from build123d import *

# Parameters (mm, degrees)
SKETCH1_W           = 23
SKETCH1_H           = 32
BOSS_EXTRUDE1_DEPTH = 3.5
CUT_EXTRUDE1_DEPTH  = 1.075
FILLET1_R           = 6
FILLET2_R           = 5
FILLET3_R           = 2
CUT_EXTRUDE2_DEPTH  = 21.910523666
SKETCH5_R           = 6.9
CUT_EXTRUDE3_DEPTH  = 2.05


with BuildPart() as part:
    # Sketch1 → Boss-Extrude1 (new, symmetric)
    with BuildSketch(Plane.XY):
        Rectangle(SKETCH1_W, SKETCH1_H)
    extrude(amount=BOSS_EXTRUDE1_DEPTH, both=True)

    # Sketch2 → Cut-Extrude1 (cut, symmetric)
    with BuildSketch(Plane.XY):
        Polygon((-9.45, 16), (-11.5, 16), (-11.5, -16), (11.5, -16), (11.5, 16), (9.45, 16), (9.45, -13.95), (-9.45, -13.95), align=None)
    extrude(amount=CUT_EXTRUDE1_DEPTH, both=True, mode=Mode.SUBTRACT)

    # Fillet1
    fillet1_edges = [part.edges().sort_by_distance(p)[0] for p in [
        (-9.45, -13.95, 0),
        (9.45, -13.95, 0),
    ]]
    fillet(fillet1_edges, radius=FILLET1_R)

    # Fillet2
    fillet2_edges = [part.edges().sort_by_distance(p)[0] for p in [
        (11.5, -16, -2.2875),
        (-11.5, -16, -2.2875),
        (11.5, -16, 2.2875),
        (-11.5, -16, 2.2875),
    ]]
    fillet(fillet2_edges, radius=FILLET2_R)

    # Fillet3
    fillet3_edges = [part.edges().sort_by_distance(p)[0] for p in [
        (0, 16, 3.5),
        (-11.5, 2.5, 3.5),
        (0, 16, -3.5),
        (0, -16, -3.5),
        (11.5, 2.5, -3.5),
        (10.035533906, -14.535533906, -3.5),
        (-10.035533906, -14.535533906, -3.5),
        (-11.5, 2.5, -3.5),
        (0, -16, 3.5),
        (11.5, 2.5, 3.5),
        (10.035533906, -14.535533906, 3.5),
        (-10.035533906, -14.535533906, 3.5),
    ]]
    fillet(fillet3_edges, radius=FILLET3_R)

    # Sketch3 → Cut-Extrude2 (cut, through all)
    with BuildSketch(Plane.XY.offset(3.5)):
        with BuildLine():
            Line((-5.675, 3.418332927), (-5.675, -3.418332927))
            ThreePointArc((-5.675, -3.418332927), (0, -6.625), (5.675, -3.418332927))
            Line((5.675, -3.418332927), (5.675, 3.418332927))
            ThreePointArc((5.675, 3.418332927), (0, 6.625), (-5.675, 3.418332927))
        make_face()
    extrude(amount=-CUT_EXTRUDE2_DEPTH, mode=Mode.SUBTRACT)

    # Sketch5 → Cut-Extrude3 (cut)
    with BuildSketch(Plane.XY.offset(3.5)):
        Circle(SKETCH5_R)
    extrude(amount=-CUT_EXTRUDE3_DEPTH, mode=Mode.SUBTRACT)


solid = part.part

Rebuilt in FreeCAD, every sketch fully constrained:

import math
import FreeCAD as App
import Part
import Sketcher
from FreeCAD import Vector
Q = App.Units.Quantity


def edges_at(feature, points):
    """Names of the edges that pass closest to the given points."""
    edges = feature.Shape.Edges
    near = lambda p: min(range(len(edges)), key=lambda i: edges[i].distToShape(Part.Vertex(*p))[0])
    return sorted({f"Edge{near(p) + 1}" for p in points})

doc = App.newDocument("Part")
body = doc.addObject("PartDesign::Body", "Body")

# Sketch on XY plane
sketch1 = doc.addObject("Sketcher::SketchObject", "Sketch")
body.addObject(sketch1)
sketch1.AttachmentSupport = (doc.XY_Plane, [""])
sketch1.MapMode = "FlatFace"
sketch1.addGeometry(Part.LineSegment(Vector(-12, 16, 0), Vector(-12, -16, 0)), False)
sketch1.addGeometry(Part.LineSegment(Vector(-12, -16, 0), Vector(12, -16, 0)), False)
sketch1.addGeometry(Part.LineSegment(Vector(12, -16, 0), Vector(12, 16, 0)), False)
sketch1.addGeometry(Part.LineSegment(Vector(12, 16, 0), Vector(-12, 16, 0)), False)
sketch1.addConstraint(Sketcher.Constraint("Coincident", 0, 2, 1, 1))
sketch1.addConstraint(Sketcher.Constraint("Coincident", 1, 2, 2, 1))
sketch1.addConstraint(Sketcher.Constraint("Coincident", 2, 2, 3, 1))
sketch1.addConstraint(Sketcher.Constraint("Coincident", 3, 2, 0, 1))
sketch1.addConstraint(Sketcher.Constraint("Vertical", 0))
sketch1.addConstraint(Sketcher.Constraint("Horizontal", 1))
sketch1.addConstraint(Sketcher.Constraint("Vertical", 2))
sketch1.addConstraint(Sketcher.Constraint("Horizontal", 3))
sketch1.addConstraint(Sketcher.Constraint("Symmetric", 0, 2, 2, 2, -1, 1))
sketch1.addConstraint(Sketcher.Constraint("DistanceX", 1, 1, 1, 2, Q("23 mm")))
sketch1.addConstraint(Sketcher.Constraint("DistanceY", 0, 2, 0, 1, Q("32 mm")))
pad1 = doc.addObject("PartDesign::Pad", "Pad")
body.addObject(pad1)
pad1.Profile = sketch1
pad1.Length = 7
pad1.Midplane = True

# Sketch on XY plane
sketch2 = doc.addObject("Sketcher::SketchObject", "Sketch001")
body.addObject(sketch2)
sketch2.AttachmentSupport = (doc.XY_Plane, [""])
sketch2.MapMode = "FlatFace"
sketch2.addGeometry(Part.LineSegment(Vector(-9.4, 16, 0), Vector(-11.5, 16, 0)), False)
sketch2.addGeometry(Part.LineSegment(Vector(-11.5, 16, 0), Vector(-11.5, -16, 0)), False)
sketch2.addGeometry(Part.LineSegment(Vector(-11.5, -16, 0), Vector(11.5, -16, 0)), False)
sketch2.addGeometry(Part.LineSegment(Vector(11.5, -16, 0), Vector(11.5, 16, 0)), False)
sketch2.addGeometry(Part.LineSegment(Vector(11.5, 16, 0), Vector(9.4, 16, 0)), False)
sketch2.addGeometry(Part.LineSegment(Vector(9.4, 16, 0), Vector(9.4, -13.9, 0)), False)
sketch2.addGeometry(Part.LineSegment(Vector(9.4, -13.9, 0), Vector(-9.4, -13.9, 0)), False)
sketch2.addGeometry(Part.LineSegment(Vector(-9.4, -13.9, 0), Vector(-9.4, 16, 0)), False)
sketch2.addConstraint(Sketcher.Constraint("Coincident", 0, 2, 1, 1))
sketch2.addConstraint(Sketcher.Constraint("Coincident", 1, 2, 2, 1))
sketch2.addConstraint(Sketcher.Constraint("Coincident", 2, 2, 3, 1))
sketch2.addConstraint(Sketcher.Constraint("Coincident", 3, 2, 4, 1))
sketch2.addConstraint(Sketcher.Constraint("Coincident", 4, 2, 5, 1))
sketch2.addConstraint(Sketcher.Constraint("Coincident", 5, 2, 6, 1))
sketch2.addConstraint(Sketcher.Constraint("Coincident", 6, 2, 7, 1))
sketch2.addConstraint(Sketcher.Constraint("Coincident", 7, 2, 0, 1))
sketch2.addConstraint(Sketcher.Constraint("Horizontal", 0))
sketch2.addConstraint(Sketcher.Constraint("Vertical", 1))
sketch2.addConstraint(Sketcher.Constraint("Horizontal", 2))
sketch2.addConstraint(Sketcher.Constraint("Vertical", 3))
sketch2.addConstraint(Sketcher.Constraint("Horizontal", 4))
sketch2.addConstraint(Sketcher.Constraint("Vertical", 5))
sketch2.addConstraint(Sketcher.Constraint("Horizontal", 6))
sketch2.addConstraint(Sketcher.Constraint("Vertical", 7))
sketch2.addConstraint(Sketcher.Constraint("Symmetric", 0, 2, 2, 2, -1, 1))
sketch2.addConstraint(Sketcher.Constraint("Symmetric", 4, 2, 7, 2, -2))
sketch2.addConstraint(Sketcher.Constraint("DistanceX", 2, 1, 2, 2, Q("23 mm")))
sketch2.addConstraint(Sketcher.Constraint("DistanceY", 1, 2, 1, 1, Q("32 mm")))
sketch2.addConstraint(Sketcher.Constraint("DistanceX", 6, 2, 6, 1, Q("18.9 mm")))
sketch2.addConstraint(Sketcher.Constraint("DistanceY", 5, 2, 5, 1, Q("29.95 mm")))
pocket1 = doc.addObject("PartDesign::Pocket", "Pocket")
body.addObject(pocket1)
pocket1.Profile = sketch2
pocket1.Length = 2.15
pocket1.Midplane = True
doc.recompute()

fillet = doc.addObject("PartDesign::Fillet", "Fillet")
body.addObject(fillet)
fillet.Base = (pocket1, edges_at(pocket1, [(-9.45, -13.95, 0), (9.45, -13.95, 0)]))
fillet.Radius = 6
doc.recompute()

fillet2 = doc.addObject("PartDesign::Fillet", "Fillet001")
body.addObject(fillet2)
fillet2.Base = (fillet, edges_at(fillet, [
    (11.5, -16, -2.288),
    (-11.5, -16, -2.288),
    (11.5, -16, 2.288),
    (-11.5, -16, 2.288),
]))
fillet2.Radius = 5
doc.recompute()

fillet3 = doc.addObject("PartDesign::Fillet", "Fillet002")
body.addObject(fillet3)
fillet3.Base = (fillet2, edges_at(fillet2, [
    (0, 16, 3.5),
    (-11.5, 2.5, 3.5),
    (0, 16, -3.5),
    (0, -16, -3.5),
    (11.5, 2.5, -3.5),
    (10.036, -14.536, -3.5),
    (-10.036, -14.536, -3.5),
    (-11.5, 2.5, -3.5),
    (0, -16, 3.5),
    (11.5, 2.5, 3.5),
    (10.036, -14.536, 3.5),
    (-10.036, -14.536, 3.5),
]))
fillet3.Radius = 2

# Sketch on XY plane
sketch3 = doc.addObject("Sketcher::SketchObject", "Sketch002")
body.addObject(sketch3)
sketch3.AttachmentSupport = (doc.XY_Plane, [""])
sketch3.MapMode = "FlatFace"
sketch3.AttachmentOffset = App.Placement(Vector(0, 0, 3.5), App.Rotation())
sketch3.addGeometry(Part.LineSegment(Vector(-6, 3, 0), Vector(-6, -3, 0)), False)
sketch3.addGeometry(Part.ArcOfCircle(Part.Circle(Vector(0, 0, 0), Vector(0, 0, 1), 7), math.radians(-149), math.radians(-31)), False)
sketch3.addGeometry(Part.LineSegment(Vector(6, -3, 0), Vector(6, 3, 0)), False)
sketch3.addGeometry(Part.ArcOfCircle(Part.Circle(Vector(0, 0, 0), Vector(0, 0, 1), 7), math.radians(31), math.radians(149)), False)
sketch3.addConstraint(Sketcher.Constraint("Coincident", 0, 2, 1, 1))
sketch3.addConstraint(Sketcher.Constraint("Coincident", 1, 2, 2, 1))
sketch3.addConstraint(Sketcher.Constraint("Coincident", 2, 2, 3, 1))
sketch3.addConstraint(Sketcher.Constraint("Coincident", 3, 2, 0, 1))
sketch3.addConstraint(Sketcher.Constraint("Vertical", 0))
sketch3.addConstraint(Sketcher.Constraint("Vertical", 2))
sketch3.addConstraint(Sketcher.Constraint("Coincident", 1, 3, -1, 1))
sketch3.addConstraint(Sketcher.Constraint("Coincident", 3, 3, -1, 1))
sketch3.addConstraint(Sketcher.Constraint("Equal", 1, 3))
sketch3.addConstraint(Sketcher.Constraint("Horizontal", 0, 2, 1, 2))
sketch3.addConstraint(Sketcher.Constraint("Radius", 1, Q("6.625 mm")))
sketch3.addConstraint(Sketcher.Constraint("DistanceX", 0, 2, 1, 2, Q("11.35 mm")))
pocket2 = doc.addObject("PartDesign::Pocket", "Pocket001")
body.addObject(pocket2)
pocket2.Profile = sketch3
pocket2.Type = "ThroughAll"

# Sketch on XY plane
sketch4 = doc.addObject("Sketcher::SketchObject", "Sketch003")
body.addObject(sketch4)
sketch4.AttachmentSupport = (doc.XY_Plane, [""])
sketch4.MapMode = "FlatFace"
sketch4.AttachmentOffset = App.Placement(Vector(0, 0, 3.5), App.Rotation())
sketch4.addGeometry(Part.Circle(Vector(0, 0, 0), Vector(0, 0, 1), 7), False)
sketch4.addConstraint(Sketcher.Constraint("Coincident", 0, 3, -1, 1))
sketch4.addConstraint(Sketcher.Constraint("Diameter", 0, Q("13.8 mm")))
pocket3 = doc.addObject("PartDesign::Pocket", "Pocket002")
body.addObject(pocket3)
pocket3.Profile = sketch4
pocket3.Length = 2.05

doc.recompute()
